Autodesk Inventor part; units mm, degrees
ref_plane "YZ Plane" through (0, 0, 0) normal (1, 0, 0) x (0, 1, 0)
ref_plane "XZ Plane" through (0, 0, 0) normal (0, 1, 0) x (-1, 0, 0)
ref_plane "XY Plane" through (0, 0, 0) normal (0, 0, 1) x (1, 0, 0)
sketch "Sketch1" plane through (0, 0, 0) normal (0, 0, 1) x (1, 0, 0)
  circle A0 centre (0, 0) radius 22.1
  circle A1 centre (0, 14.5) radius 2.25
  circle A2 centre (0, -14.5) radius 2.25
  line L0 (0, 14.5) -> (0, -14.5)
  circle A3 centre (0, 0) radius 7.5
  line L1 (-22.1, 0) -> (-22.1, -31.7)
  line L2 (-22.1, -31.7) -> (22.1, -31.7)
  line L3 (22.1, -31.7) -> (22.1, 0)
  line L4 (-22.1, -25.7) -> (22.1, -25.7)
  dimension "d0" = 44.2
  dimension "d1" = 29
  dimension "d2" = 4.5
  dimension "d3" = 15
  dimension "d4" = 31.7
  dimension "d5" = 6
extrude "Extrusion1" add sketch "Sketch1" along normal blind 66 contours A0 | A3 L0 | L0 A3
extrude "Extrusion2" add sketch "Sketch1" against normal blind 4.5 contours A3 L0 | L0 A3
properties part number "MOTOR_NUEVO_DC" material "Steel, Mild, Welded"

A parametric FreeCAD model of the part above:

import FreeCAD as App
import Part
import Sketcher

V = App.Vector

doc = App.newDocument("Part")
body = doc.addObject("PartDesign::Body", "Body")

sketch1 = body.newObject("Sketcher::SketchObject", "Sketch")
sketch1.AttachmentSupport = (doc.getObject("XY_Plane"), [""])
sketch1.MapMode = "FlatFace"
sketch1.addGeometry(Part.Circle(V(0, 0, 0), V(0, 0, 1), 22.1), False)
sketch1.addGeometry(Part.Circle(V(0, -14.5, 0), V(0, 0, 1), 2.2), False)
sketch1.addGeometry(Part.Circle(V(0, 14.5, 0), V(0, 0, 1), 2.2), False)
sketch1.addConstraint(Sketcher.Constraint("Coincident", 0, 3, -1, 1))
sketch1.addConstraint(Sketcher.Constraint("Equal", 1, 2))
sketch1.addConstraint(Sketcher.Constraint("Symmetric", 1, 3, 2, 3, -1, 1))
sketch1.addConstraint(Sketcher.Constraint("PointOnObject", 1, 3, -2))
sketch1.addConstraint(Sketcher.Constraint("Diameter", 0, 44.2))
sketch1.addConstraint(Sketcher.Constraint("Diameter", 1, 4.5))
sketch1.addConstraint(Sketcher.Constraint("DistanceY", 1, 3, 2, 3, 29.0))
pad1 = body.newObject("PartDesign::Pad", "Pad")
pad1.Profile = sketch1
pad1.Length = 66

sketch2 = body.newObject("Sketcher::SketchObject", "Sketch001")
sketch2.AttachmentSupport = (doc.getObject("XY_Plane"), [""])
sketch2.MapMode = "FlatFace"
sketch2.addGeometry(Part.Circle(V(0, 0, 0), V(0, 0, 1), 8), False)
sketch2.addConstraint(Sketcher.Constraint("Coincident", 0, 3, -1, 1))
sketch2.addConstraint(Sketcher.Constraint("Diameter", 0, 15.0))
pad2 = body.newObject("PartDesign::Pad", "Pad001")
pad2.Profile = sketch2
pad2.Length = 4.5
pad2.Reversed = True

doc.recompute()
